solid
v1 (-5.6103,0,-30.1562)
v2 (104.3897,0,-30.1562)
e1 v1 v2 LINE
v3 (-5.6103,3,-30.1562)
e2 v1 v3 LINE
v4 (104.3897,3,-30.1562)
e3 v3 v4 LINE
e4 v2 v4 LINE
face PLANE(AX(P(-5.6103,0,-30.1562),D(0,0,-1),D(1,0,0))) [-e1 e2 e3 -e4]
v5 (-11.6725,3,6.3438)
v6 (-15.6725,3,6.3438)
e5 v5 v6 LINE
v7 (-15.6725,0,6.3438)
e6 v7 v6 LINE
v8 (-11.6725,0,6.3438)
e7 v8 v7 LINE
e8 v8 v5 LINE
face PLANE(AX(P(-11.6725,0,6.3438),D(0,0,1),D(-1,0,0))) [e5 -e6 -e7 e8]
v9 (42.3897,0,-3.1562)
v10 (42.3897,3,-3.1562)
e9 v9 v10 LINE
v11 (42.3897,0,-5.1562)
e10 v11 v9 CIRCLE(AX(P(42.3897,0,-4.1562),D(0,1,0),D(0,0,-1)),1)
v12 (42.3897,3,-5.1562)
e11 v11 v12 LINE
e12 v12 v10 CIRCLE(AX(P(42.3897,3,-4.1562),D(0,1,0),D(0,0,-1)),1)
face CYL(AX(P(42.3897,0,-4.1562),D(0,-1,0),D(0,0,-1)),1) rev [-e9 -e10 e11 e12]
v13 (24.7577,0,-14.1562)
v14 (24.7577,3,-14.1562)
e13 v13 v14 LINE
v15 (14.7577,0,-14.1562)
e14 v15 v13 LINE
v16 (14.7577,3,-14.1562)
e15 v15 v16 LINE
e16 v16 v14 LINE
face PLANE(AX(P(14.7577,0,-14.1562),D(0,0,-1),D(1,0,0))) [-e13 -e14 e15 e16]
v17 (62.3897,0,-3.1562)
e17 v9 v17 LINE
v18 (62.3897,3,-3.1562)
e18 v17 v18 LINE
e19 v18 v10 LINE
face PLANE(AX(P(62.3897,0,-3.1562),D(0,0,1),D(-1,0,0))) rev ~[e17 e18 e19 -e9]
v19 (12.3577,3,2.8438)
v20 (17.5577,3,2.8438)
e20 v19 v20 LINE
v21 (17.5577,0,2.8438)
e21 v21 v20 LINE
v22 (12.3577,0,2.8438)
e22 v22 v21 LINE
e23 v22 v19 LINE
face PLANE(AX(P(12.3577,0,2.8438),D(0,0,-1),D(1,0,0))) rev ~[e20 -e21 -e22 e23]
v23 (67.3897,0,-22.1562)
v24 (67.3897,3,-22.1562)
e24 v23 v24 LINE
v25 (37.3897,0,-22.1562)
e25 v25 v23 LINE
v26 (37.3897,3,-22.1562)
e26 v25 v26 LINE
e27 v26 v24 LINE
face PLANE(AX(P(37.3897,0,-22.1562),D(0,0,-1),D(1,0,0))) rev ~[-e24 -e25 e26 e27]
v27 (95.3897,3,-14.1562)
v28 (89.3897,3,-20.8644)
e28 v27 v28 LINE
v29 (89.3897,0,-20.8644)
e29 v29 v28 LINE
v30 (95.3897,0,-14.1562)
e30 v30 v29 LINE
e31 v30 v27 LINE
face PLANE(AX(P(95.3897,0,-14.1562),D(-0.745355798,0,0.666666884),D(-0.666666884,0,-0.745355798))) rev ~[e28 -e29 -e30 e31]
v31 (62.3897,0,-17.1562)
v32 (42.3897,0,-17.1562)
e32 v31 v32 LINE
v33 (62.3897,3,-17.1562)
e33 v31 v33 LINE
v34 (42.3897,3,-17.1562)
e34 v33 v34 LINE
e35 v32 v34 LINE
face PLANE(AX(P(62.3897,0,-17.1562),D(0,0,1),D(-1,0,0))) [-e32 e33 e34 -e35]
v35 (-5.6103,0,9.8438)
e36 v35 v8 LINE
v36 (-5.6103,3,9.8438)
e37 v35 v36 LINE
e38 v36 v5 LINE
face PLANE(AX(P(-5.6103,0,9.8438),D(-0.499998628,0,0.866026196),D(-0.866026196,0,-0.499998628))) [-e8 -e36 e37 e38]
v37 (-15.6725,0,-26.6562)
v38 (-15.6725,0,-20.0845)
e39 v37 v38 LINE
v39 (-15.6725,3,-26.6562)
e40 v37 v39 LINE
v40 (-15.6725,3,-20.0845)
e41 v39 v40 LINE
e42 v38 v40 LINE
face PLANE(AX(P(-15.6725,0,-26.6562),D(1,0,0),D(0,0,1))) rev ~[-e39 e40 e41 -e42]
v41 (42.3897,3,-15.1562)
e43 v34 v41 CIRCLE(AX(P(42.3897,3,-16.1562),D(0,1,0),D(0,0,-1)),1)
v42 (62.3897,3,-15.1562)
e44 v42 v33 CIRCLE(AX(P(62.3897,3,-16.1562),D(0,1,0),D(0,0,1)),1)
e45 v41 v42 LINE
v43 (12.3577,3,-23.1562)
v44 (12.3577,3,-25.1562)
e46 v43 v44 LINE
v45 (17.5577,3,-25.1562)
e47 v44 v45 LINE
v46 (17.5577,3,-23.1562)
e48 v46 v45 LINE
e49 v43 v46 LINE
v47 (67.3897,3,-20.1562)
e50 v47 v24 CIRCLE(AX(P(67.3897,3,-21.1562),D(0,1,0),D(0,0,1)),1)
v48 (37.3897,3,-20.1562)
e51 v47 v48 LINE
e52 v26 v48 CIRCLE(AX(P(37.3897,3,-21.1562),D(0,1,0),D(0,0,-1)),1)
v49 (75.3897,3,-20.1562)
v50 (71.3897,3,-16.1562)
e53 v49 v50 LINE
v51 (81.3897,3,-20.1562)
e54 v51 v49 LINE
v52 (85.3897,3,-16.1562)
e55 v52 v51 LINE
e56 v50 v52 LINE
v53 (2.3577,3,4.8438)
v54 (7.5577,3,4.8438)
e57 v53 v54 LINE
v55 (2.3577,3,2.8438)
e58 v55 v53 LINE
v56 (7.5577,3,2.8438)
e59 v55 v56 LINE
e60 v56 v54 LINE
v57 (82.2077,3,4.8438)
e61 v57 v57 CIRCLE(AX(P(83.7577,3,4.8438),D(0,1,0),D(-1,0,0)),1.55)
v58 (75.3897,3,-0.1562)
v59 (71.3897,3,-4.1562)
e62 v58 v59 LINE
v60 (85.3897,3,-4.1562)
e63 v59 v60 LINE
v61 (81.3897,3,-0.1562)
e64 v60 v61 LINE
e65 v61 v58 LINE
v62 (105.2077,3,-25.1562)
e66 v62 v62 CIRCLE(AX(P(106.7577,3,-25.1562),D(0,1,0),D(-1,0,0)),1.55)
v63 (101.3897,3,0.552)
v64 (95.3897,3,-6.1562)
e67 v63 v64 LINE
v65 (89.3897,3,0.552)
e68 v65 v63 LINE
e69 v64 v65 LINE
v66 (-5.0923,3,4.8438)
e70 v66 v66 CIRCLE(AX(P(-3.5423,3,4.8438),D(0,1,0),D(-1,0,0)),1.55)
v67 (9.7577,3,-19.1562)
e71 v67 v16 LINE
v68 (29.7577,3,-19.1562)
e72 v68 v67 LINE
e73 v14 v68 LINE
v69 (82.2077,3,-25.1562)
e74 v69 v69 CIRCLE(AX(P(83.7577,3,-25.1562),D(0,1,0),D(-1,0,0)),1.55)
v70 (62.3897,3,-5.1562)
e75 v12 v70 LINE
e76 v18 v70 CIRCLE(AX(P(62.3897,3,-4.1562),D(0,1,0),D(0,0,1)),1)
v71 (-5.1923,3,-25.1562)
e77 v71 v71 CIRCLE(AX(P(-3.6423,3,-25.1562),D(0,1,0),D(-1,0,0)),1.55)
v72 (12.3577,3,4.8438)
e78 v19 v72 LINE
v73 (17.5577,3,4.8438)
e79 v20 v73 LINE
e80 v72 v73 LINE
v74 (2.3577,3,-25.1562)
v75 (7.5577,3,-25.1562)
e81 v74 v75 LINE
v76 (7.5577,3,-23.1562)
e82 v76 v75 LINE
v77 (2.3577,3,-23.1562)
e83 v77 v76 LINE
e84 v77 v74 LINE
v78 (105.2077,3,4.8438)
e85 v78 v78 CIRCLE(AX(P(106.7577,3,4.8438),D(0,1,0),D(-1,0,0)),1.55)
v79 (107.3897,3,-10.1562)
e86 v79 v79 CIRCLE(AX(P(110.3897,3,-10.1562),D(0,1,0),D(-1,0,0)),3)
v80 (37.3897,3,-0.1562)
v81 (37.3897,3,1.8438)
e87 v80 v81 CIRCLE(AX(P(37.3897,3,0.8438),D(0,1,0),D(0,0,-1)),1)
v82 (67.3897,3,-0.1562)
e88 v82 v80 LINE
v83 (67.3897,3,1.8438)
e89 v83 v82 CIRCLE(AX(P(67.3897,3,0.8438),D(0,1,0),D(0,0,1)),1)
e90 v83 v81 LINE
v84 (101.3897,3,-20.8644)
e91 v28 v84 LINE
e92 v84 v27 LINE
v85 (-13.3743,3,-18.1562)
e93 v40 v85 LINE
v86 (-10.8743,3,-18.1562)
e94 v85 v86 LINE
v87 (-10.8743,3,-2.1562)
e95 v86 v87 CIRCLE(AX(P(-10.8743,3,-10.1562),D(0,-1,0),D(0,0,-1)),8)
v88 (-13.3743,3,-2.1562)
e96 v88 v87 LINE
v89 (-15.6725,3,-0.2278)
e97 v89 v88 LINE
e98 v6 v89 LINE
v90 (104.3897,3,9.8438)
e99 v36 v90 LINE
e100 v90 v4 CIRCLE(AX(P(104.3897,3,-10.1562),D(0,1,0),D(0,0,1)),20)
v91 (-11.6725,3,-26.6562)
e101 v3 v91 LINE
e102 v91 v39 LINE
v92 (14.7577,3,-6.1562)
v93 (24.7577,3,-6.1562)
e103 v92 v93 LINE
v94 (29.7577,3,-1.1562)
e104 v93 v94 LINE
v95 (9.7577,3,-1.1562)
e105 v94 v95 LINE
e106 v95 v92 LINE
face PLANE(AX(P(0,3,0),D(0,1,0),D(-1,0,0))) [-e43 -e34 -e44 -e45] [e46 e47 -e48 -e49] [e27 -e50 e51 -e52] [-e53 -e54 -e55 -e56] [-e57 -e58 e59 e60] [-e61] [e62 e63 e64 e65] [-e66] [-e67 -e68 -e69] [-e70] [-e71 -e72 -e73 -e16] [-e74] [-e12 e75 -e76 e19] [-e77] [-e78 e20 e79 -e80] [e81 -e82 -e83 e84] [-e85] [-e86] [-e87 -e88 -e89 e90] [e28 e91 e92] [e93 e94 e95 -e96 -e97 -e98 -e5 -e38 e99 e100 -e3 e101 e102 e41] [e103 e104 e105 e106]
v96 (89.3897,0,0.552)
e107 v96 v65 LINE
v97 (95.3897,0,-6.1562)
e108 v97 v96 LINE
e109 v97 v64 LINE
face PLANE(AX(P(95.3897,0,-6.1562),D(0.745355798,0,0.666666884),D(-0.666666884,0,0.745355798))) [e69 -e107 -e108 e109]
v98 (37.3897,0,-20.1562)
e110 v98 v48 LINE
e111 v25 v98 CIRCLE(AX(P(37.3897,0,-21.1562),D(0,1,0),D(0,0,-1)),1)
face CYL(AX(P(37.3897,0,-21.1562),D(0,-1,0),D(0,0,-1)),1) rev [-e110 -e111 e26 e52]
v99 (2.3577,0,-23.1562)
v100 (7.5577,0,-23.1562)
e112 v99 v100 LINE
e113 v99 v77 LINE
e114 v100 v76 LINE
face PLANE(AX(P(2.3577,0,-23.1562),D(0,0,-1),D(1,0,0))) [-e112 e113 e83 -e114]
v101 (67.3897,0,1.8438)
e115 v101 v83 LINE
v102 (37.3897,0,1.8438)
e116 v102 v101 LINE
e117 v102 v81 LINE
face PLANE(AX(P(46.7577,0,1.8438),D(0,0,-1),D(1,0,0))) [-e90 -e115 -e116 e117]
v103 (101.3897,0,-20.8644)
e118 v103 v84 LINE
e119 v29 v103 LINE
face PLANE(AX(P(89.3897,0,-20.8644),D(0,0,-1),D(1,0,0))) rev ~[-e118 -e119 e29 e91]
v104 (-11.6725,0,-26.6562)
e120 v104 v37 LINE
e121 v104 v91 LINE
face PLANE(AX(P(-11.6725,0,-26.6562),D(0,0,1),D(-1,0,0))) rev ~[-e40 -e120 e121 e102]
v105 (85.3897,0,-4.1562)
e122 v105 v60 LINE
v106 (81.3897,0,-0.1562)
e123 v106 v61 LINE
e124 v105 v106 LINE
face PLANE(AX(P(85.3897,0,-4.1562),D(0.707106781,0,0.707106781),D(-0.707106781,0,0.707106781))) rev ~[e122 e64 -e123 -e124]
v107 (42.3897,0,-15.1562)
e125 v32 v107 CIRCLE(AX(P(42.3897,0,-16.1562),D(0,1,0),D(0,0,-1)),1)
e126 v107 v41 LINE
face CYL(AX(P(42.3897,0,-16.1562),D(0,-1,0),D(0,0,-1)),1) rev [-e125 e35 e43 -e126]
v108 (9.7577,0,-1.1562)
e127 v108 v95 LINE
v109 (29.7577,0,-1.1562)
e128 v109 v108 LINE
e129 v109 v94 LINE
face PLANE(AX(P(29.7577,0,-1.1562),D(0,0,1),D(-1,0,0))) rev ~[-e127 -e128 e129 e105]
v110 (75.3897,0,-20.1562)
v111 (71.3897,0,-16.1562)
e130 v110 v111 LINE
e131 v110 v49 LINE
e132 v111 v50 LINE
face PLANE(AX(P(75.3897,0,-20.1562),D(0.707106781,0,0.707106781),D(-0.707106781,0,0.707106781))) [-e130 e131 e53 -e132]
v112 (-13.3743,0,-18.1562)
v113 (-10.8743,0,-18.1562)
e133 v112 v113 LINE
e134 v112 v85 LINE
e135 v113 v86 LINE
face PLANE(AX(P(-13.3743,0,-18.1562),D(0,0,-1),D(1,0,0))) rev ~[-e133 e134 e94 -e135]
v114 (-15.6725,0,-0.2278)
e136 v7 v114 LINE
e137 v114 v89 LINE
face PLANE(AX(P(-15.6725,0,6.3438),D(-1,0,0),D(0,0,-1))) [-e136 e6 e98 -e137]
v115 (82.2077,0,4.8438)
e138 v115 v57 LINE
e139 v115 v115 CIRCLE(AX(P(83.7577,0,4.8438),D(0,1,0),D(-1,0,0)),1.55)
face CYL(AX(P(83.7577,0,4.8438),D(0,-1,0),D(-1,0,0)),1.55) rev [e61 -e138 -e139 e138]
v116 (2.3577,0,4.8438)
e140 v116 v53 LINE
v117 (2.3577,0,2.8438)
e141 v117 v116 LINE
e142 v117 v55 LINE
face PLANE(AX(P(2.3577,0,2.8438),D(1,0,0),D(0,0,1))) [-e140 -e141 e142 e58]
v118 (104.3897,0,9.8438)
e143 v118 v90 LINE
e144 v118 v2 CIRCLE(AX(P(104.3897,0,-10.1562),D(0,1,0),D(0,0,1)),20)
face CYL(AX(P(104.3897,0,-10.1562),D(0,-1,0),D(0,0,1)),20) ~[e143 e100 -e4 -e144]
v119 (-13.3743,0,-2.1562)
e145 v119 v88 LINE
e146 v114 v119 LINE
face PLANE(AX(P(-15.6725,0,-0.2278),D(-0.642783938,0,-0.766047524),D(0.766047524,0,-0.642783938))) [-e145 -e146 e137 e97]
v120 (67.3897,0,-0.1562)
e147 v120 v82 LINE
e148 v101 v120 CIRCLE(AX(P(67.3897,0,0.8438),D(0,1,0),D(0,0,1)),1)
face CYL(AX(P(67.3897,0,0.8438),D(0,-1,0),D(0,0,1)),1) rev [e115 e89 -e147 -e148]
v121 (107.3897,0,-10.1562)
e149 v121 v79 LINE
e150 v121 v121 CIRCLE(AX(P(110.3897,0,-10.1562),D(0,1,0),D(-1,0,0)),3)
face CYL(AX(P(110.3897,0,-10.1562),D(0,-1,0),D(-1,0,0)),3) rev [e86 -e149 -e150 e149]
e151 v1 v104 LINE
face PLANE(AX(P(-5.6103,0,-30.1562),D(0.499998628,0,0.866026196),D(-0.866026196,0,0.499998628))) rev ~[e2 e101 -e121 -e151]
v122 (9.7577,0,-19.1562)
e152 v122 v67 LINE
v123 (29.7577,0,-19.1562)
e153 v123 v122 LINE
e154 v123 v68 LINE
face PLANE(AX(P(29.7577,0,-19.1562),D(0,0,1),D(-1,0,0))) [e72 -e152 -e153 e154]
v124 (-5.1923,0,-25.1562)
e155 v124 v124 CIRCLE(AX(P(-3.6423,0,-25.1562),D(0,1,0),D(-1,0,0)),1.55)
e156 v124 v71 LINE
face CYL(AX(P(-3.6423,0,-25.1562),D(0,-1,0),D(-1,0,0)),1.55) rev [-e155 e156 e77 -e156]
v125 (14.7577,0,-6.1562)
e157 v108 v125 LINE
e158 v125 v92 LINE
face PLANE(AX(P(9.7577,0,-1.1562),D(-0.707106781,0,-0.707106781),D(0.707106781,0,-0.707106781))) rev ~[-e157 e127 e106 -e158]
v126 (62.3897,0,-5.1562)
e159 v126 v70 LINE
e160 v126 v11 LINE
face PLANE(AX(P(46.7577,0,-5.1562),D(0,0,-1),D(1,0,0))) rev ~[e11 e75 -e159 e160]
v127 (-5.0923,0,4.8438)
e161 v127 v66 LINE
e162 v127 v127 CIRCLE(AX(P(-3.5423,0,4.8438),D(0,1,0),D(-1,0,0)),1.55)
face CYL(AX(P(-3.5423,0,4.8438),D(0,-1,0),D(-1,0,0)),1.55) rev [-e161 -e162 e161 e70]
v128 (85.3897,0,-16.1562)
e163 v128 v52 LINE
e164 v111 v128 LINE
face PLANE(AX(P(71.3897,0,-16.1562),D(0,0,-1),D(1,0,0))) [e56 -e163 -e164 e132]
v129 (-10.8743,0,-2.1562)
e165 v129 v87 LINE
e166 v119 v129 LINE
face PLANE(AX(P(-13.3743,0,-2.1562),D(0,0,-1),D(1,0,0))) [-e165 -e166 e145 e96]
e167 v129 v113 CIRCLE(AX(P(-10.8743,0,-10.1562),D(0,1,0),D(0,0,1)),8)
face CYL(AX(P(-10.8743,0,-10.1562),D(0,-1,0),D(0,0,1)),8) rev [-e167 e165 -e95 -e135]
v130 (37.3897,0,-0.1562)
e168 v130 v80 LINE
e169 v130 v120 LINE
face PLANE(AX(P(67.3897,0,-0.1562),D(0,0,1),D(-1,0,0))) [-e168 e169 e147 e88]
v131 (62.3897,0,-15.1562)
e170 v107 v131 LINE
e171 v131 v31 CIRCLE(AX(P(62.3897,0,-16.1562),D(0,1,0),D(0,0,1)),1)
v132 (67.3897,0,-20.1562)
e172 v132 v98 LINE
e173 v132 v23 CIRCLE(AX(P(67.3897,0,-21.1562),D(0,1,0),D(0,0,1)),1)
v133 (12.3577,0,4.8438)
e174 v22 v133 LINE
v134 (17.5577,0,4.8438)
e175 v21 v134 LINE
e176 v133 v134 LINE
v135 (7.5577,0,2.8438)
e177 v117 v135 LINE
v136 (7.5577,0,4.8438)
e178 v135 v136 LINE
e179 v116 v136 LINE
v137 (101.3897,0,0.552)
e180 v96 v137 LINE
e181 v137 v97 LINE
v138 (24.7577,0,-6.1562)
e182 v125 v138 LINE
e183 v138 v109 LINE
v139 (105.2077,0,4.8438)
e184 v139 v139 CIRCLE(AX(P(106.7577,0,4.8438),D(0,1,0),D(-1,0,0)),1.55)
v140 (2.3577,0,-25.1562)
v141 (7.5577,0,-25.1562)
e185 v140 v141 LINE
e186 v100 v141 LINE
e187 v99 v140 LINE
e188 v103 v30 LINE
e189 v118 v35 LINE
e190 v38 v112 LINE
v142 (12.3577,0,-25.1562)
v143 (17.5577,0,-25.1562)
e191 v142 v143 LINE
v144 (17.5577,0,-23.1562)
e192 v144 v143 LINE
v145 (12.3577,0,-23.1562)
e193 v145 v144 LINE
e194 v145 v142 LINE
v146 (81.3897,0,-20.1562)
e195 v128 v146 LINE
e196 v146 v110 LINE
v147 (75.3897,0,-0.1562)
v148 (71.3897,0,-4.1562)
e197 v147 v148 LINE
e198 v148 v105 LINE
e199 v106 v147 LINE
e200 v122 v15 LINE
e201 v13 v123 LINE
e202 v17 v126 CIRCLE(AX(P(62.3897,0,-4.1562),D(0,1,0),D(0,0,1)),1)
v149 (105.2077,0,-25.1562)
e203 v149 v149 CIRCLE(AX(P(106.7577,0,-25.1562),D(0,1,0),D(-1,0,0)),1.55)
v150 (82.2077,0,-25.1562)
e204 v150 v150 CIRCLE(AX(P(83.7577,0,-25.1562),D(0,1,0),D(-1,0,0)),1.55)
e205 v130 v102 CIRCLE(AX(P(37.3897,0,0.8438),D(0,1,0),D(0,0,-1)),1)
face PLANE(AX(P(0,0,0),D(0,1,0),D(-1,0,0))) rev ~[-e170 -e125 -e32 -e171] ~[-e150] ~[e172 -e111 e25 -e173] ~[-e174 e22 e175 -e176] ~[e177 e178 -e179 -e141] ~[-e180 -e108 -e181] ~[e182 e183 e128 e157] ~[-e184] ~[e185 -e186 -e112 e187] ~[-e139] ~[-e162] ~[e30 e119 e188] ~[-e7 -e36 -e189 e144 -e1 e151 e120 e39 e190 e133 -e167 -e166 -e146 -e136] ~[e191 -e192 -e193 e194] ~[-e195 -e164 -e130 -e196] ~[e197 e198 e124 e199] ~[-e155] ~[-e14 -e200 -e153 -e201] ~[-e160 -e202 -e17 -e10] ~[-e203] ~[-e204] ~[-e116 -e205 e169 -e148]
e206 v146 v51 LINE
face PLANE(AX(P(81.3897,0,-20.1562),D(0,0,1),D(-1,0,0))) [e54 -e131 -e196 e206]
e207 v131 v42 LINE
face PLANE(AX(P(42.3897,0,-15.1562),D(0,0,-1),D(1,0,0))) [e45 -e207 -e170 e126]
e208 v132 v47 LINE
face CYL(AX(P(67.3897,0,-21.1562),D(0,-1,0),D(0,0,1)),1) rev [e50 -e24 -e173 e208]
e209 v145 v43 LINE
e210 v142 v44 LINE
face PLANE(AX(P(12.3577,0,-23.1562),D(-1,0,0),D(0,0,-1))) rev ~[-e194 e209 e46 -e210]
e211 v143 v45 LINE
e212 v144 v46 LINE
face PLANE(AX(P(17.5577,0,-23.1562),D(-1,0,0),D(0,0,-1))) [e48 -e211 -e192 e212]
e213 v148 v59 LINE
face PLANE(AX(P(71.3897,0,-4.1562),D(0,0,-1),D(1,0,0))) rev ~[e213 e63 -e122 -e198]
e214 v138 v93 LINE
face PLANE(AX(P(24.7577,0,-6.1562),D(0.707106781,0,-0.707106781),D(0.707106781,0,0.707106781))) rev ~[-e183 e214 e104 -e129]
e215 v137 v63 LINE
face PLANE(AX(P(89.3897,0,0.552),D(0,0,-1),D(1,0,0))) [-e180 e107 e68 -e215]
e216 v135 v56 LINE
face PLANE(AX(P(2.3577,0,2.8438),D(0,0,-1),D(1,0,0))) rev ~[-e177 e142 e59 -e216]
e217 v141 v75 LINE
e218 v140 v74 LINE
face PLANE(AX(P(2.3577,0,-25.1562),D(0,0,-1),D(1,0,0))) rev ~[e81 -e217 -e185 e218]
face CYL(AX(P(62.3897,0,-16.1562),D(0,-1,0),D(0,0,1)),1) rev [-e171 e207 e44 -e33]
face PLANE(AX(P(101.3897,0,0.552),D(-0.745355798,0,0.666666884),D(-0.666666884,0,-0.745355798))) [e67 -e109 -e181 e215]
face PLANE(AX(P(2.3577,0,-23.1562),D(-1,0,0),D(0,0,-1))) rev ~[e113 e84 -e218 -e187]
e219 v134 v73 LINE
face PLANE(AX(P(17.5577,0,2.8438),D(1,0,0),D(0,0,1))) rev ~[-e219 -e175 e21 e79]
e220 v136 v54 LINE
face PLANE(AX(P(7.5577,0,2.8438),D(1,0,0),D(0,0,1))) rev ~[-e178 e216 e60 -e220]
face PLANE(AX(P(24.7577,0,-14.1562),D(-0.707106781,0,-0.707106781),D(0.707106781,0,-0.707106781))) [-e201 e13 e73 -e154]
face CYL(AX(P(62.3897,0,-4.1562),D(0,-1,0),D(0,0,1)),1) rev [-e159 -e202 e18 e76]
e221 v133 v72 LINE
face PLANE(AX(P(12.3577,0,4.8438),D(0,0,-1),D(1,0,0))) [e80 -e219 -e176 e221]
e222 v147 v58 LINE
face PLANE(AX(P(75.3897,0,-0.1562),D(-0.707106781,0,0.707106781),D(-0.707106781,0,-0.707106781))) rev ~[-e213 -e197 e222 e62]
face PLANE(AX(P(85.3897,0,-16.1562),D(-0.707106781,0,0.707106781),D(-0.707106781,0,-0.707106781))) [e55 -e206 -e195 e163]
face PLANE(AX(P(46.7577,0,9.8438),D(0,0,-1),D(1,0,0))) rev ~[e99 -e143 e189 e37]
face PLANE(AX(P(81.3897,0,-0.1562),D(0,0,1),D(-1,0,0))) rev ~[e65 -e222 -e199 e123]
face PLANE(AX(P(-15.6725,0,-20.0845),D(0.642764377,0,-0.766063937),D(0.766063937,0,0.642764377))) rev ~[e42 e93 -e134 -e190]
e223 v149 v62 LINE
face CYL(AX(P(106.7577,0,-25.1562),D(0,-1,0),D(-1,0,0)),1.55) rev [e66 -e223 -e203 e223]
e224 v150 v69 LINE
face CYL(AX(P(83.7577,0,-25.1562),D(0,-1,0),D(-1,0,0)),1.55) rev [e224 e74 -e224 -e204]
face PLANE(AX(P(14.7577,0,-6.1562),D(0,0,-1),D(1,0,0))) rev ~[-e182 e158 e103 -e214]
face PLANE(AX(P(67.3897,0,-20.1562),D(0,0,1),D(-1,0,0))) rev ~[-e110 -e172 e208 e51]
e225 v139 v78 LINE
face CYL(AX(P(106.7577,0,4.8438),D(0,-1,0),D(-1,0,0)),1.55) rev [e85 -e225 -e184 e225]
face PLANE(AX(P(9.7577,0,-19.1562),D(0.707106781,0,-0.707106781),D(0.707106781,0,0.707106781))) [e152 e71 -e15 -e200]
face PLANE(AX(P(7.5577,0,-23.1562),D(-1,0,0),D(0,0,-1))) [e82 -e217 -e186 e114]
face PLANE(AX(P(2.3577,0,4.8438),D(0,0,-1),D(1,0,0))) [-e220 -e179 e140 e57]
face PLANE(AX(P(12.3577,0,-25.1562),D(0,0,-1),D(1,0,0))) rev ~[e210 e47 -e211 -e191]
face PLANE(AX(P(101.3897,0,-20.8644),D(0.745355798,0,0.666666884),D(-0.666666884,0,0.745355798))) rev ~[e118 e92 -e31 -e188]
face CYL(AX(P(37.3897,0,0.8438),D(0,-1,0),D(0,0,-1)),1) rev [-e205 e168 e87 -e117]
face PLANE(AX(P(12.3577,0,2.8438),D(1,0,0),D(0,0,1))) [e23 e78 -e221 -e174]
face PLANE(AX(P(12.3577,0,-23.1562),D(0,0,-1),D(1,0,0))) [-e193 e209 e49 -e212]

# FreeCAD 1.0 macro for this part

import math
import FreeCAD as App
import Part
import Sketcher

V = App.Vector
Q = App.Units.Quantity

doc = App.newDocument("Part")
params = doc.addObject("Spreadsheet::Sheet", "Params")
for row, (alias, value) in enumerate([
    ("sketch1_diameter", "6 mm"),
    ("sketch1_radius", "20 mm"),
    ("sketch1_radius2", "8 mm"),
    ("sketch1_radius3", "1 mm"),
    ("sketch1_diameter2", "3.1 mm"),
    ("pad1_length", "3 mm"),
], start=1):
    params.set(f"A{row}", alias)
    params.set(f"B{row}", "=" + value)
    params.setAlias(f"B{row}", alias)

body = doc.addObject("PartDesign::Body", "Body")

sketch1 = doc.addObject("Sketcher::SketchObject", "Sketch")
body.addObject(sketch1)
sketch1.AttachmentSupport = (doc.XZ_Plane, [""])
sketch1.MapMode = "FlatFace"
sketch1.addGeometry(Part.ArcOfCircle(Part.Circle(V(104.4, -10.2, 0), V(0, 0, 1), 20), math.radians(-90), math.radians(90)), False)
sketch1.addGeometry(Part.LineSegment(V(104.4, -30.2, 0), V(-5.6, -30.2, 0)), False)
sketch1.addGeometry(Part.LineSegment(V(-5.6, -30.2, 0), V(-11.7, -26.7, 0)), False)
sketch1.addGeometry(Part.LineSegment(V(-11.7, -26.7, 0), V(-15.7, -26.7, 0)), False)
sketch1.addGeometry(Part.LineSegment(V(-15.7, -26.7, 0), V(-15.7, -20.1, 0)), False)
sketch1.addGeometry(Part.LineSegment(V(-15.7, -20.1, 0), V(-13.4, -18.2, 0)), False)
sketch1.addGeometry(Part.LineSegment(V(-13.4, -18.2, 0), V(-10.9, -18.2, 0)), False)
sketch1.addGeometry(Part.ArcOfCircle(Part.Circle(V(-10.9, -10.2, 0), V(0, 0, 1), 8), math.radians(-90), math.radians(90)), False)
sketch1.addGeometry(Part.LineSegment(V(-10.9, -2.2, 0), V(-13.4, -2.2, 0)), False)
sketch1.addGeometry(Part.LineSegment(V(-13.4, -2.2, 0), V(-15.7, -0.2, 0)), False)
sketch1.addGeometry(Part.LineSegment(V(-15.7, -0.2, 0), V(-15.7, 6.3, 0)), False)
sketch1.addGeometry(Part.LineSegment(V(-15.7, 6.3, 0), V(-11.7, 6.3, 0)), False)
sketch1.addGeometry(Part.LineSegment(V(-11.7, 6.3, 0), V(-5.6, 9.8, 0)), False)
sketch1.addGeometry(Part.LineSegment(V(-5.6, 9.8, 0), V(104.4, 9.8, 0)), False)
sketch1.addGeometry(Part.ArcOfCircle(Part.Circle(V(67.4, 0.8, 0), V(0, 0, 1), 1), math.radians(-90), math.radians(90)), False)
sketch1.addGeometry(Part.LineSegment(V(67.4, 1.8, 0), V(37.4, 1.8, 0)), False)
sketch1.addGeometry(Part.ArcOfCircle(Part.Circle(V(37.4, 0.8, 0), V(0, 0, 1), 1), math.radians(90), math.radians(270)), False)
sketch1.addGeometry(Part.LineSegment(V(37.4, -0.2, 0), V(67.4, -0.2, 0)), False)
sketch1.addGeometry(Part.LineSegment(V(62.4, -3.2, 0), V(42.4, -3.2, 0)), False)
sketch1.addGeometry(Part.ArcOfCircle(Part.Circle(V(42.4, -4.2, 0), V(0, 0, 1), 1), math.radians(90), math.radians(270)), False)
sketch1.addGeometry(Part.LineSegment(V(42.4, -5.2, 0), V(62.4, -5.2, 0)), False)
sketch1.addGeometry(Part.ArcOfCircle(Part.Circle(V(62.4, -4.2, 0), V(0, 0, 1), 1), math.radians(-90), math.radians(90)), False)
sketch1.addGeometry(Part.LineSegment(V(101.4, 0.6, 0), V(89.4, 0.6, 0)), False)
sketch1.addGeometry(Part.LineSegment(V(89.4, 0.6, 0), V(95.4, -6.2, 0)), False)
sketch1.addGeometry(Part.LineSegment(V(95.4, -6.2, 0), V(101.4, 0.6, 0)), False)
sketch1.addGeometry(Part.LineSegment(V(71.4, -4.2, 0), V(85.4, -4.2, 0)), False)
sketch1.addGeometry(Part.LineSegment(V(85.4, -4.2, 0), V(81.4, -0.2, 0)), False)
sketch1.addGeometry(Part.LineSegment(V(81.4, -0.2, 0), V(75.4, -0.2, 0)), False)
sketch1.addGeometry(Part.LineSegment(V(75.4, -0.2, 0), V(71.4, -4.2, 0)), False)
sketch1.addGeometry(Part.Circle(V(83.8, 4.8, 0), V(0, 0, 1), 1.6), False)
sketch1.addGeometry(Part.LineSegment(V(7.6, 2.8, 0), V(7.6, 4.8, 0)), False)
sketch1.addGeometry(Part.LineSegment(V(7.6, 4.8, 0), V(2.4, 4.8, 0)), False)
sketch1.addGeometry(Part.LineSegment(V(2.4, 4.8, 0), V(2.4, 2.8, 0)), False)
sketch1.addGeometry(Part.LineSegment(V(2.4, 2.8, 0), V(7.6, 2.8, 0)), False)
sketch1.addGeometry(Part.Circle(V(-3.5, 4.8, 0), V(0, 0, 1), 1.6), False)
sketch1.addGeometry(Part.LineSegment(V(24.8, -6.2, 0), V(29.8, -1.2, 0)), False)
sketch1.addGeometry(Part.LineSegment(V(29.8, -1.2, 0), V(9.8, -1.2, 0)), False)
sketch1.addGeometry(Part.LineSegment(V(9.8, -1.2, 0), V(14.8, -6.2, 0)), False)
sketch1.addGeometry(Part.LineSegment(V(14.8, -6.2, 0), V(24.8, -6.2, 0)), False)
sketch1.addGeometry(Part.LineSegment(V(12.4, 4.8, 0), V(12.4, 2.8, 0)), False)
sketch1.addGeometry(Part.LineSegment(V(12.4, 2.8, 0), V(17.6, 2.8, 0)), False)
sketch1.addGeometry(Part.LineSegment(V(17.6, 2.8, 0), V(17.6, 4.8, 0)), False)
sketch1.addGeometry(Part.LineSegment(V(17.6, 4.8, 0), V(12.4, 4.8, 0)), False)
sketch1.addGeometry(Part.LineSegment(V(24.8, -14.2, 0), V(14.8, -14.2, 0)), False)
sketch1.addGeometry(Part.LineSegment(V(14.8, -14.2, 0), V(9.8, -19.2, 0)), False)
sketch1.addGeometry(Part.LineSegment(V(9.8, -19.2, 0), V(29.8, -19.2, 0)), False)
sketch1.addGeometry(Part.LineSegment(V(29.8, -19.2, 0), V(24.8, -14.2, 0)), False)
sketch1.addGeometry(Part.Circle(V(83.8, -25.2, 0), V(0, 0, 1), 1.6), False)
sketch1.addGeometry(Part.LineSegment(V(95.4, -14.2, 0), V(89.4, -20.9, 0)), False)
sketch1.addGeometry(Part.LineSegment(V(89.4, -20.9, 0), V(101.4, -20.9, 0)), False)
sketch1.addGeometry(Part.LineSegment(V(101.4, -20.9, 0), V(95.4, -14.2, 0)), False)
sketch1.addGeometry(Part.LineSegment(V(81.4, -20.2, 0), V(85.4, -16.2, 0)), False)
sketch1.addGeometry(Part.LineSegment(V(85.4, -16.2, 0), V(71.4, -16.2, 0)), False)
sketch1.addGeometry(Part.LineSegment(V(71.4, -16.2, 0), V(75.4, -20.2, 0)), False)
sketch1.addGeometry(Part.LineSegment(V(75.4, -20.2, 0), V(81.4, -20.2, 0)), False)
sketch1.addGeometry(Part.ArcOfCircle(Part.Circle(V(67.4, -21.2, 0), V(0, 0, 1), 1), math.radians(-90), math.radians(90)), False)
sketch1.addGeometry(Part.LineSegment(V(67.4, -20.2, 0), V(37.4, -20.2, 0)), False)
sketch1.addGeometry(Part.ArcOfCircle(Part.Circle(V(37.4, -21.2, 0), V(0, 0, 1), 1), math.radians(90), math.radians(270)), False)
sketch1.addGeometry(Part.LineSegment(V(37.4, -22.2, 0), V(67.4, -22.2, 0)), False)
sketch1.addGeometry(Part.LineSegment(V(17.6, -23.2, 0), V(12.4, -23.2, 0)), False)
sketch1.addGeometry(Part.LineSegment(V(12.4, -23.2, 0), V(12.4, -25.2, 0)), False)
sketch1.addGeometry(Part.LineSegment(V(12.4, -25.2, 0), V(17.6, -25.2, 0)), False)
sketch1.addGeometry(Part.LineSegment(V(17.6, -25.2, 0), V(17.6, -23.2, 0)), False)
sketch1.addGeometry(Part.LineSegment(V(7.6, -23.2, 0), V(2.4, -23.2, 0)), False)
sketch1.addGeometry(Part.LineSegment(V(2.4, -23.2, 0), V(2.4, -25.2, 0)), False)
sketch1.addGeometry(Part.LineSegment(V(2.4, -25.2, 0), V(7.6, -25.2, 0)), False)
sketch1.addGeometry(Part.LineSegment(V(7.6, -25.2, 0), V(7.6, -23.2, 0)), False)
sketch1.addGeometry(Part.Circle(V(-3.6, -25.2, 0), V(0, 0, 1), 1.6), False)
sketch1.addGeometry(Part.LineSegment(V(42.4, -17.2, 0), V(62.4, -17.2, 0)), False)
sketch1.addGeometry(Part.ArcOfCircle(Part.Circle(V(62.4, -16.2, 0), V(0, 0, 1), 1), math.radians(-90), math.radians(90)), False)
sketch1.addGeometry(Part.LineSegment(V(62.4, -15.2, 0), V(42.4, -15.2, 0)), False)
sketch1.addGeometry(Part.ArcOfCircle(Part.Circle(V(42.4, -16.2, 0), V(0, 0, 1), 1), math.radians(90), math.radians(270)), False)
sketch1.addGeometry(Part.Circle(V(106.8, 4.8, 0), V(0, 0, 1), 1.6), False)
sketch1.addGeometry(Part.Circle(V(106.8, -25.2, 0), V(0, 0, 1), 1.6), False)
sketch1.addGeometry(Part.Circle(V(110.4, -10.2, 0), V(0, 0, 1), 3), False)
sketch1.addConstraint(Sketcher.Constraint("Tangent", 0, 1, 1, 1))
sketch1.addConstraint(Sketcher.Constraint("Coincident", 1, 2, 2, 1))
sketch1.addConstraint(Sketcher.Constraint("Coincident", 2, 2, 3, 1))
sketch1.addConstraint(Sketcher.Constraint("Coincident", 3, 2, 4, 1))
sketch1.addConstraint(Sketcher.Constraint("Coincident", 4, 2, 5, 1))
sketch1.addConstraint(Sketcher.Constraint("Coincident", 5, 2, 6, 1))
sketch1.addConstraint(Sketcher.Constraint("Tangent", 6, 2, 7, 1))
sketch1.addConstraint(Sketcher.Constraint("Tangent", 7, 2, 8, 1))
sketch1.addConstraint(Sketcher.Constraint("Coincident", 8, 2, 9, 1))
sketch1.addConstraint(Sketcher.Constraint("Coincident", 9, 2, 10, 1))
sketch1.addConstraint(Sketcher.Constraint("Coincident", 10, 2, 11, 1))
sketch1.addConstraint(Sketcher.Constraint("Coincident", 11, 2, 12, 1))
sketch1.addConstraint(Sketcher.Constraint("Coincident", 12, 2, 13, 1))
sketch1.addConstraint(Sketcher.Constraint("Tangent", 13, 2, 0, 2))
sketch1.addConstraint(Sketcher.Constraint("Tangent", 14, 2, 15, 1))
sketch1.addConstraint(Sketcher.Constraint("Tangent", 15, 2, 16, 1))
sketch1.addConstraint(Sketcher.Constraint("Tangent", 16, 2, 17, 1))
sketch1.addConstraint(Sketcher.Constraint("Tangent", 17, 2, 14, 1))
sketch1.addConstraint(Sketcher.Constraint("Tangent", 18, 2, 19, 1))
sketch1.addConstraint(Sketcher.Constraint("Tangent", 19, 2, 20, 1))
sketch1.addConstraint(Sketcher.Constraint("Tangent", 20, 2, 21, 1))
sketch1.addConstraint(Sketcher.Constraint("Tangent", 21, 2, 18, 1))
sketch1.addConstraint(Sketcher.Constraint("Coincident", 22, 2, 23, 1))
sketch1.addConstraint(Sketcher.Constraint("Coincident", 23, 2, 24, 1))
sketch1.addConstraint(Sketcher.Constraint("Coincident", 24, 2, 22, 1))
sketch1.addConstraint(Sketcher.Constraint("Coincident", 25, 2, 26, 1))
sketch1.addConstraint(Sketcher.Constraint("Coincident", 26, 2, 27, 1))
sketch1.addConstraint(Sketcher.Constraint("Coincident", 27, 2, 28, 1))
sketch1.addConstraint(Sketcher.Constraint("Coincident", 28, 2, 25, 1))
sketch1.addConstraint(Sketcher.Constraint("Coincident", 30, 2, 31, 1))
sketch1.addConstraint(Sketcher.Constraint("Coincident", 31, 2, 32, 1))
sketch1.addConstraint(Sketcher.Constraint("Coincident", 32, 2, 33, 1))
sketch1.addConstraint(Sketcher.Constraint("Coincident", 33, 2, 30, 1))
sketch1.addConstraint(Sketcher.Constraint("Coincident", 35, 2, 36, 1))
sketch1.addConstraint(Sketcher.Constraint("Coincident", 36, 2, 37, 1))
sketch1.addConstraint(Sketcher.Constraint("Coincident", 37, 2, 38, 1))
sketch1.addConstraint(Sketcher.Constraint("Coincident", 38, 2, 35, 1))
sketch1.addConstraint(Sketcher.Constraint("Coincident", 39, 2, 40, 1))
sketch1.addConstraint(Sketcher.Constraint("Coincident", 40, 2, 41, 1))
sketch1.addConstraint(Sketcher.Constraint("Coincident", 41, 2, 42, 1))
sketch1.addConstraint(Sketcher.Constraint("Coincident", 42, 2, 39, 1))
sketch1.addConstraint(Sketcher.Constraint("Coincident", 43, 2, 44, 1))
sketch1.addConstraint(Sketcher.Constraint("Coincident", 44, 2, 45, 1))
sketch1.addConstraint(Sketcher.Constraint("Coincident", 45, 2, 46, 1))
sketch1.addConstraint(Sketcher.Constraint("Coincident", 46, 2, 43, 1))
sketch1.addConstraint(Sketcher.Constraint("Coincident", 48, 2, 49, 1))
sketch1.addConstraint(Sketcher.Constraint("Coincident", 49, 2, 50, 1))
sketch1.addConstraint(Sketcher.Constraint("Coincident", 50, 2, 48, 1))
sketch1.addConstraint(Sketcher.Constraint("Coincident", 51, 2, 52, 1))
sketch1.addConstraint(Sketcher.Constraint("Coincident", 52, 2, 53, 1))
sketch1.addConstraint(Sketcher.Constraint("Coincident", 53, 2, 54, 1))
sketch1.addConstraint(Sketcher.Constraint("Coincident", 54, 2, 51, 1))
sketch1.addConstraint(Sketcher.Constraint("Tangent", 55, 2, 56, 1))
sketch1.addConstraint(Sketcher.Constraint("Tangent", 56, 2, 57, 1))
sketch1.addConstraint(Sketcher.Constraint("Tangent", 57, 2, 58, 1))
sketch1.addConstraint(Sketcher.Constraint("Tangent", 58, 2, 55, 1))
sketch1.addConstraint(Sketcher.Constraint("Coincident", 59, 2, 60, 1))
sketch1.addConstraint(Sketcher.Constraint("Coincident", 60, 2, 61, 1))
sketch1.addConstraint(Sketcher.Constraint("Coincident", 61, 2, 62, 1))
sketch1.addConstraint(Sketcher.Constraint("Coincident", 62, 2, 59, 1))
sketch1.addConstraint(Sketcher.Constraint("Coincident", 63, 2, 64, 1))
sketch1.addConstraint(Sketcher.Constraint("Coincident", 64, 2, 65, 1))
sketch1.addConstraint(Sketcher.Constraint("Coincident", 65, 2, 66, 1))
sketch1.addConstraint(Sketcher.Constraint("Coincident", 66, 2, 63, 1))
sketch1.addConstraint(Sketcher.Constraint("Tangent", 68, 2, 69, 1))
sketch1.addConstraint(Sketcher.Constraint("Tangent", 69, 2, 70, 1))
sketch1.addConstraint(Sketcher.Constraint("Tangent", 70, 2, 71, 1))
sketch1.addConstraint(Sketcher.Constraint("Tangent", 71, 2, 68, 1))
sketch1.addConstraint(Sketcher.Constraint("Horizontal", 1))
sketch1.addConstraint(Sketcher.Constraint("Horizontal", 3))
sketch1.addConstraint(Sketcher.Constraint("Vertical", 4))
sketch1.addConstraint(Sketcher.Constraint("Horizontal", 6))
sketch1.addConstraint(Sketcher.Constraint("Horizontal", 8))
sketch1.addConstraint(Sketcher.Constraint("Vertical", 10))
sketch1.addConstraint(Sketcher.Constraint("Horizontal", 11))
sketch1.addConstraint(Sketcher.Constraint("Horizontal", 13))
sketch1.addConstraint(Sketcher.Constraint("Horizontal", 15))
sketch1.addConstraint(Sketcher.Constraint("Horizontal", 17))
sketch1.addConstraint(Sketcher.Constraint("Horizontal", 18))
sketch1.addConstraint(Sketcher.Constraint("Horizontal", 20))
sketch1.addConstraint(Sketcher.Constraint("Horizontal", 22))
sketch1.addConstraint(Sketcher.Constraint("Horizontal", 25))
sketch1.addConstraint(Sketcher.Constraint("Horizontal", 27))
sketch1.addConstraint(Sketcher.Constraint("Vertical", 30))
sketch1.addConstraint(Sketcher.Constraint("Horizontal", 31))
sketch1.addConstraint(Sketcher.Constraint("Vertical", 32))
sketch1.addConstraint(Sketcher.Constraint("Horizontal", 33))
sketch1.addConstraint(Sketcher.Constraint("Horizontal", 36))
sketch1.addConstraint(Sketcher.Constraint("Horizontal", 38))
sketch1.addConstraint(Sketcher.Constraint("Vertical", 39))
sketch1.addConstraint(Sketcher.Constraint("Horizontal", 40))
sketch1.addConstraint(Sketcher.Constraint("Vertical", 41))
sketch1.addConstraint(Sketcher.Constraint("Horizontal", 42))
sketch1.addConstraint(Sketcher.Constraint("Horizontal", 43))
sketch1.addConstraint(Sketcher.Constraint("Horizontal", 45))
sketch1.addConstraint(Sketcher.Constraint("Horizontal", 49))
sketch1.addConstraint(Sketcher.Constraint("Horizontal", 52))
sketch1.addConstraint(Sketcher.Constraint("Horizontal", 54))
sketch1.addConstraint(Sketcher.Constraint("Horizontal", 56))
sketch1.addConstraint(Sketcher.Constraint("Horizontal", 58))
sketch1.addConstraint(Sketcher.Constraint("Horizontal", 59))
sketch1.addConstraint(Sketcher.Constraint("Vertical", 60))
sketch1.addConstraint(Sketcher.Constraint("Horizontal", 61))
sketch1.addConstraint(Sketcher.Constraint("Vertical", 62))
sketch1.addConstraint(Sketcher.Constraint("Horizontal", 63))
sketch1.addConstraint(Sketcher.Constraint("Vertical", 64))
sketch1.addConstraint(Sketcher.Constraint("Horizontal", 65))
sketch1.addConstraint(Sketcher.Constraint("Vertical", 66))
sketch1.addConstraint(Sketcher.Constraint("Horizontal", 68))
sketch1.addConstraint(Sketcher.Constraint("Horizontal", 70))
sketch1.addConstraint(Sketcher.Constraint("Equal", 16, 19))
sketch1.addConstraint(Sketcher.Constraint("Equal", 29, 34))
sketch1.addConstraint(Sketcher.Constraint("Equal", 34, 47))
sketch1.addConstraint(Sketcher.Constraint("Equal", 21, 55))
sketch1.addConstraint(Sketcher.Constraint("Equal", 47, 67))
sketch1.addConstraint(Sketcher.Constraint("Equal", 57, 69))
sketch1.addConstraint(Sketcher.Constraint("Equal", 67, 72))
sketch1.addConstraint(Sketcher.Constraint("Equal", 72, 73))
sketch1.addConstraint(Sketcher.Constraint("Perpendicular", 26, 28))
sketch1.addConstraint(Sketcher.Constraint("Parallel", 28, 35))
sketch1.addConstraint(Sketcher.Constraint("Perpendicular", 35, 37))
sketch1.addConstraint(Sketcher.Constraint("Perpendicular", 37, 44))
sketch1.addConstraint(Sketcher.Constraint("Perpendicular", 44, 46))
sketch1.addConstraint(Sketcher.Constraint("Parallel", 24, 48))
sketch1.addConstraint(Sketcher.Constraint("Parallel", 23, 50))
sketch1.addConstraint(Sketcher.Constraint("Perpendicular", 46, 51))
sketch1.addConstraint(Sketcher.Constraint("Perpendicular", 51, 53))
sketch1.addConstraint(Sketcher.Constraint("Horizontal", 0, 3, 7, 3))
sketch1.addConstraint(Sketcher.Constraint("Horizontal", 29, 3, 34, 3))
sketch1.addConstraint(Sketcher.Constraint("Horizontal", 47, 3, 67, 3))
sketch1.addConstraint(Sketcher.Constraint("Horizontal", 34, 3, 72, 3))
sketch1.addConstraint(Sketcher.Constraint("Horizontal", 67, 3, 73, 3))
sketch1.addConstraint(Sketcher.Constraint("Horizontal", 7, 3, 74, 3))
sketch1.addConstraint(Sketcher.Constraint("Horizontal", 21, 3, 25, 2))
sketch1.addConstraint(Sketcher.Constraint("Horizontal", 17, 2, 26, 2))
sketch1.addConstraint(Sketcher.Constraint("Horizontal", 72, 3, 30, 2))
sketch1.addConstraint(Sketcher.Constraint("Horizontal", 23, 2, 37, 2))
sketch1.addConstraint(Sketcher.Constraint("Horizontal", 33, 2, 39, 2))
sketch1.addConstraint(Sketcher.Constraint("Horizontal", 31, 2, 41, 2))
sketch1.addConstraint(Sketcher.Constraint("Horizontal", 46, 2, 50, 2))
sketch1.addConstraint(Sketcher.Constraint("Horizontal", 71, 3, 51, 2))
sketch1.addConstraint(Sketcher.Constraint("Horizontal", 54, 2, 55, 2))
sketch1.addConstraint(Sketcher.Constraint("Horizontal", 73, 3, 60, 2))
sketch1.addConstraint(Sketcher.Constraint("Horizontal", 62, 2, 63, 2))
sketch1.addConstraint(Sketcher.Constraint("Horizontal", 61, 2, 64, 2))
sketch1.addConstraint(Sketcher.Constraint("Vertical", 29, 3, 47, 3))
sketch1.addConstraint(Sketcher.Constraint("Vertical", 14, 3, 55, 3))
sketch1.addConstraint(Sketcher.Constraint("Vertical", 16, 3, 57, 3))
sketch1.addConstraint(Sketcher.Constraint("Vertical", 21, 3, 69, 3))
sketch1.addConstraint(Sketcher.Constraint("Vertical", 19, 3, 71, 3))
sketch1.addConstraint(Sketcher.Constraint("Vertical", 72, 3, 73, 3))
sketch1.addConstraint(Sketcher.Constraint("Vertical", 5, 2, 8, 2))
sketch1.addConstraint(Sketcher.Constraint("Vertical", 4, 2, 9, 2))
sketch1.addConstraint(Sketcher.Constraint("Vertical", 2, 2, 11, 2))
sketch1.addConstraint(Sketcher.Constraint("Vertical", 1, 2, 12, 2))
sketch1.addConstraint(Sketcher.Constraint("Vertical", 37, 2, 43, 2))
sketch1.addConstraint(Sketcher.Constraint("Vertical", 36, 2, 44, 2))
sketch1.addConstraint(Sketcher.Constraint("Vertical", 35, 2, 45, 2))
sketch1.addConstraint(Sketcher.Constraint("Vertical", 38, 2, 46, 2))
sketch1.addConstraint(Sketcher.Constraint("Vertical", 22, 2, 48, 2))
sketch1.addConstraint(Sketcher.Constraint("Vertical", 24, 2, 49, 2))
sketch1.addConstraint(Sketcher.Constraint("Vertical", 23, 2, 50, 2))
sketch1.addConstraint(Sketcher.Constraint("Vertical", 25, 2, 51, 2))
sketch1.addConstraint(Sketcher.Constraint("Vertical", 28, 2, 52, 2))
sketch1.addConstraint(Sketcher.Constraint("Vertical", 27, 2, 53, 2))
sketch1.addConstraint(Sketcher.Constraint("Vertical", 42, 2, 59, 2))
sketch1.addConstraint(Sketcher.Constraint("Vertical", 41, 2, 61, 2))
sketch1.addConstraint(Sketcher.Constraint("Vertical", 32, 2, 63, 2))
sketch1.addConstraint(Sketcher.Constraint("Vertical", 33, 2, 65, 2))
sketch1.addConstraint(Sketcher.Constraint("Equal", 20, 36))
sketch1.addConstraint(Sketcher.Constraint("Equal", 33, 40))
sketch1.addConstraint(Sketcher.Constraint("Equal", 4, 10))
sketch1.addConstraint(Sketcher.Constraint("Equal", 41, 60))
sketch1.addConstraint(Sketcher.Constraint("Equal", 5, 9))
sketch1.addConstraint(Sketcher.Constraint("Diameter", 74, 6.0))
sketch1.addConstraint(Sketcher.Constraint("Radius", 0, 20.0))
sketch1.addConstraint(Sketcher.Constraint("Radius", 7, 8.0))
sketch1.addConstraint(Sketcher.Constraint("Radius", 14, 1.0))
sketch1.addConstraint(Sketcher.Constraint("Diameter", 29, 3.1))
sketch1.addConstraint(Sketcher.Constraint("DistanceX", 1, 2, 1, 1, 110.0))
sketch1.addConstraint(Sketcher.Constraint("DistanceX", 3, 2, 3, 1, 4.0))
sketch1.addConstraint(Sketcher.Constraint("DistanceX", 15, 2, 15, 1, 30.0))
sketch1.addConstraint(Sketcher.Constraint("DistanceX", 18, 2, 18, 1, 20.0))
sketch1.addConstraint(Sketcher.Constraint("DistanceX", 22, 2, 22, 1, 12.0))
sketch1.addConstraint(Sketcher.Constraint("DistanceX", 25, 1, 25, 2, 14.0))
sketch1.addConstraint(Sketcher.Constraint("DistanceX", 27, 2, 27, 1, 6.0))
sketch1.addConstraint(Sketcher.Constraint("DistanceX", 38, 1, 38, 2, 10.0))
sketch1.addConstraint(Sketcher.Constraint("DistanceY", 30, 1, 30, 2, 2.0))
sketch1.addConstraint(Sketcher.Constraint("Angle", 2, Q("150 deg")))
sketch1.addConstraint(Sketcher.Constraint("Distance", 2, 7.0))
sketch1.addConstraint(Sketcher.Constraint("Distance", 5, 3.0))
sketch1.addConstraint(Sketcher.Constraint("Distance", 23, 9.0))
sketch1.addConstraint(Sketcher.Constraint("DistanceX", 6, 1, 6, 2, 2.5))
sketch1.addConstraint(Sketcher.Constraint("DistanceX", 31, 2, 31, 1, 5.2))
sketch1.addConstraint(Sketcher.Constraint("Angle", 9, Q("140.0003 deg")))
sketch1.addConstraint(Sketcher.Constraint("DistanceY", -1, 1, 22, 2, 0.552))
sketch1.addConstraint(Sketcher.Constraint("DistanceX", -1, 1, 0, 3, 104.3897))
sketch1.addConstraint(Sketcher.Constraint("DistanceY", 0, 3, -1, 1, 10.1562))
sketch1.addConstraint(Sketcher.Constraint("DistanceX", -1, 1, 14, 3, 67.3897))
sketch1.addConstraint(Sketcher.Constraint("DistanceY", -1, 1, 14, 3, 0.8438))
sketch1.addConstraint(Sketcher.Constraint("DistanceX", -1, 1, 19, 3, 42.3897))
sketch1.addConstraint(Sketcher.Constraint("DistanceX", -1, 1, 29, 3, 83.7577))
sketch1.addConstraint(Sketcher.Constraint("DistanceY", -1, 1, 29, 3, 4.8438))
sketch1.addConstraint(Sketcher.Constraint("DistanceX", 34, 3, -1, 1, 3.5423))
sketch1.addConstraint(Sketcher.Constraint("DistanceY", 47, 3, -1, 1, 25.1562))
sketch1.addConstraint(Sketcher.Constraint("DistanceY", 55, 3, -1, 1, 21.1562))
sketch1.addConstraint(Sketcher.Constraint("DistanceX", 67, 3, -1, 1, 3.6423))
sketch1.addConstraint(Sketcher.Constraint("DistanceX", -1, 1, 72, 3, 106.7577))
sketch1.addConstraint(Sketcher.Constraint("DistanceX", -1, 1, 74, 3, 110.3897))
sketch1.addConstraint(Sketcher.Constraint("DistanceX", -1, 1, 22, 2, 89.3897))
sketch1.addConstraint(Sketcher.Constraint("DistanceX", -1, 1, 25, 2, 85.3897))
sketch1.addConstraint(Sketcher.Constraint("DistanceX", -1, 1, 30, 2, 7.5577))
sketch1.addConstraint(Sketcher.Constraint("DistanceX", -1, 1, 35, 2, 29.7577))
sketch1.addConstraint(Sketcher.Constraint("DistanceX", -1, 1, 39, 2, 12.3577))
sketch1.addConstraint(Sketcher.Constraint("DistanceY", 43, 2, -1, 1, 14.1562))
sketch1.setExpression("Constraints[174]", "Params.sketch1_diameter")
sketch1.setExpression("Constraints[175]", "Params.sketch1_radius")
sketch1.setExpression("Constraints[176]", "Params.sketch1_radius2")
sketch1.setExpression("Constraints[177]", "Params.sketch1_radius3")
sketch1.setExpression("Constraints[178]", "Params.sketch1_diameter2")
pad1 = doc.addObject("PartDesign::Pad", "Pad")
body.addObject(pad1)
pad1.Profile = sketch1
pad1.setExpression("Length", "Params.pad1_length")
pad1.Reversed = True

doc.recompute()
